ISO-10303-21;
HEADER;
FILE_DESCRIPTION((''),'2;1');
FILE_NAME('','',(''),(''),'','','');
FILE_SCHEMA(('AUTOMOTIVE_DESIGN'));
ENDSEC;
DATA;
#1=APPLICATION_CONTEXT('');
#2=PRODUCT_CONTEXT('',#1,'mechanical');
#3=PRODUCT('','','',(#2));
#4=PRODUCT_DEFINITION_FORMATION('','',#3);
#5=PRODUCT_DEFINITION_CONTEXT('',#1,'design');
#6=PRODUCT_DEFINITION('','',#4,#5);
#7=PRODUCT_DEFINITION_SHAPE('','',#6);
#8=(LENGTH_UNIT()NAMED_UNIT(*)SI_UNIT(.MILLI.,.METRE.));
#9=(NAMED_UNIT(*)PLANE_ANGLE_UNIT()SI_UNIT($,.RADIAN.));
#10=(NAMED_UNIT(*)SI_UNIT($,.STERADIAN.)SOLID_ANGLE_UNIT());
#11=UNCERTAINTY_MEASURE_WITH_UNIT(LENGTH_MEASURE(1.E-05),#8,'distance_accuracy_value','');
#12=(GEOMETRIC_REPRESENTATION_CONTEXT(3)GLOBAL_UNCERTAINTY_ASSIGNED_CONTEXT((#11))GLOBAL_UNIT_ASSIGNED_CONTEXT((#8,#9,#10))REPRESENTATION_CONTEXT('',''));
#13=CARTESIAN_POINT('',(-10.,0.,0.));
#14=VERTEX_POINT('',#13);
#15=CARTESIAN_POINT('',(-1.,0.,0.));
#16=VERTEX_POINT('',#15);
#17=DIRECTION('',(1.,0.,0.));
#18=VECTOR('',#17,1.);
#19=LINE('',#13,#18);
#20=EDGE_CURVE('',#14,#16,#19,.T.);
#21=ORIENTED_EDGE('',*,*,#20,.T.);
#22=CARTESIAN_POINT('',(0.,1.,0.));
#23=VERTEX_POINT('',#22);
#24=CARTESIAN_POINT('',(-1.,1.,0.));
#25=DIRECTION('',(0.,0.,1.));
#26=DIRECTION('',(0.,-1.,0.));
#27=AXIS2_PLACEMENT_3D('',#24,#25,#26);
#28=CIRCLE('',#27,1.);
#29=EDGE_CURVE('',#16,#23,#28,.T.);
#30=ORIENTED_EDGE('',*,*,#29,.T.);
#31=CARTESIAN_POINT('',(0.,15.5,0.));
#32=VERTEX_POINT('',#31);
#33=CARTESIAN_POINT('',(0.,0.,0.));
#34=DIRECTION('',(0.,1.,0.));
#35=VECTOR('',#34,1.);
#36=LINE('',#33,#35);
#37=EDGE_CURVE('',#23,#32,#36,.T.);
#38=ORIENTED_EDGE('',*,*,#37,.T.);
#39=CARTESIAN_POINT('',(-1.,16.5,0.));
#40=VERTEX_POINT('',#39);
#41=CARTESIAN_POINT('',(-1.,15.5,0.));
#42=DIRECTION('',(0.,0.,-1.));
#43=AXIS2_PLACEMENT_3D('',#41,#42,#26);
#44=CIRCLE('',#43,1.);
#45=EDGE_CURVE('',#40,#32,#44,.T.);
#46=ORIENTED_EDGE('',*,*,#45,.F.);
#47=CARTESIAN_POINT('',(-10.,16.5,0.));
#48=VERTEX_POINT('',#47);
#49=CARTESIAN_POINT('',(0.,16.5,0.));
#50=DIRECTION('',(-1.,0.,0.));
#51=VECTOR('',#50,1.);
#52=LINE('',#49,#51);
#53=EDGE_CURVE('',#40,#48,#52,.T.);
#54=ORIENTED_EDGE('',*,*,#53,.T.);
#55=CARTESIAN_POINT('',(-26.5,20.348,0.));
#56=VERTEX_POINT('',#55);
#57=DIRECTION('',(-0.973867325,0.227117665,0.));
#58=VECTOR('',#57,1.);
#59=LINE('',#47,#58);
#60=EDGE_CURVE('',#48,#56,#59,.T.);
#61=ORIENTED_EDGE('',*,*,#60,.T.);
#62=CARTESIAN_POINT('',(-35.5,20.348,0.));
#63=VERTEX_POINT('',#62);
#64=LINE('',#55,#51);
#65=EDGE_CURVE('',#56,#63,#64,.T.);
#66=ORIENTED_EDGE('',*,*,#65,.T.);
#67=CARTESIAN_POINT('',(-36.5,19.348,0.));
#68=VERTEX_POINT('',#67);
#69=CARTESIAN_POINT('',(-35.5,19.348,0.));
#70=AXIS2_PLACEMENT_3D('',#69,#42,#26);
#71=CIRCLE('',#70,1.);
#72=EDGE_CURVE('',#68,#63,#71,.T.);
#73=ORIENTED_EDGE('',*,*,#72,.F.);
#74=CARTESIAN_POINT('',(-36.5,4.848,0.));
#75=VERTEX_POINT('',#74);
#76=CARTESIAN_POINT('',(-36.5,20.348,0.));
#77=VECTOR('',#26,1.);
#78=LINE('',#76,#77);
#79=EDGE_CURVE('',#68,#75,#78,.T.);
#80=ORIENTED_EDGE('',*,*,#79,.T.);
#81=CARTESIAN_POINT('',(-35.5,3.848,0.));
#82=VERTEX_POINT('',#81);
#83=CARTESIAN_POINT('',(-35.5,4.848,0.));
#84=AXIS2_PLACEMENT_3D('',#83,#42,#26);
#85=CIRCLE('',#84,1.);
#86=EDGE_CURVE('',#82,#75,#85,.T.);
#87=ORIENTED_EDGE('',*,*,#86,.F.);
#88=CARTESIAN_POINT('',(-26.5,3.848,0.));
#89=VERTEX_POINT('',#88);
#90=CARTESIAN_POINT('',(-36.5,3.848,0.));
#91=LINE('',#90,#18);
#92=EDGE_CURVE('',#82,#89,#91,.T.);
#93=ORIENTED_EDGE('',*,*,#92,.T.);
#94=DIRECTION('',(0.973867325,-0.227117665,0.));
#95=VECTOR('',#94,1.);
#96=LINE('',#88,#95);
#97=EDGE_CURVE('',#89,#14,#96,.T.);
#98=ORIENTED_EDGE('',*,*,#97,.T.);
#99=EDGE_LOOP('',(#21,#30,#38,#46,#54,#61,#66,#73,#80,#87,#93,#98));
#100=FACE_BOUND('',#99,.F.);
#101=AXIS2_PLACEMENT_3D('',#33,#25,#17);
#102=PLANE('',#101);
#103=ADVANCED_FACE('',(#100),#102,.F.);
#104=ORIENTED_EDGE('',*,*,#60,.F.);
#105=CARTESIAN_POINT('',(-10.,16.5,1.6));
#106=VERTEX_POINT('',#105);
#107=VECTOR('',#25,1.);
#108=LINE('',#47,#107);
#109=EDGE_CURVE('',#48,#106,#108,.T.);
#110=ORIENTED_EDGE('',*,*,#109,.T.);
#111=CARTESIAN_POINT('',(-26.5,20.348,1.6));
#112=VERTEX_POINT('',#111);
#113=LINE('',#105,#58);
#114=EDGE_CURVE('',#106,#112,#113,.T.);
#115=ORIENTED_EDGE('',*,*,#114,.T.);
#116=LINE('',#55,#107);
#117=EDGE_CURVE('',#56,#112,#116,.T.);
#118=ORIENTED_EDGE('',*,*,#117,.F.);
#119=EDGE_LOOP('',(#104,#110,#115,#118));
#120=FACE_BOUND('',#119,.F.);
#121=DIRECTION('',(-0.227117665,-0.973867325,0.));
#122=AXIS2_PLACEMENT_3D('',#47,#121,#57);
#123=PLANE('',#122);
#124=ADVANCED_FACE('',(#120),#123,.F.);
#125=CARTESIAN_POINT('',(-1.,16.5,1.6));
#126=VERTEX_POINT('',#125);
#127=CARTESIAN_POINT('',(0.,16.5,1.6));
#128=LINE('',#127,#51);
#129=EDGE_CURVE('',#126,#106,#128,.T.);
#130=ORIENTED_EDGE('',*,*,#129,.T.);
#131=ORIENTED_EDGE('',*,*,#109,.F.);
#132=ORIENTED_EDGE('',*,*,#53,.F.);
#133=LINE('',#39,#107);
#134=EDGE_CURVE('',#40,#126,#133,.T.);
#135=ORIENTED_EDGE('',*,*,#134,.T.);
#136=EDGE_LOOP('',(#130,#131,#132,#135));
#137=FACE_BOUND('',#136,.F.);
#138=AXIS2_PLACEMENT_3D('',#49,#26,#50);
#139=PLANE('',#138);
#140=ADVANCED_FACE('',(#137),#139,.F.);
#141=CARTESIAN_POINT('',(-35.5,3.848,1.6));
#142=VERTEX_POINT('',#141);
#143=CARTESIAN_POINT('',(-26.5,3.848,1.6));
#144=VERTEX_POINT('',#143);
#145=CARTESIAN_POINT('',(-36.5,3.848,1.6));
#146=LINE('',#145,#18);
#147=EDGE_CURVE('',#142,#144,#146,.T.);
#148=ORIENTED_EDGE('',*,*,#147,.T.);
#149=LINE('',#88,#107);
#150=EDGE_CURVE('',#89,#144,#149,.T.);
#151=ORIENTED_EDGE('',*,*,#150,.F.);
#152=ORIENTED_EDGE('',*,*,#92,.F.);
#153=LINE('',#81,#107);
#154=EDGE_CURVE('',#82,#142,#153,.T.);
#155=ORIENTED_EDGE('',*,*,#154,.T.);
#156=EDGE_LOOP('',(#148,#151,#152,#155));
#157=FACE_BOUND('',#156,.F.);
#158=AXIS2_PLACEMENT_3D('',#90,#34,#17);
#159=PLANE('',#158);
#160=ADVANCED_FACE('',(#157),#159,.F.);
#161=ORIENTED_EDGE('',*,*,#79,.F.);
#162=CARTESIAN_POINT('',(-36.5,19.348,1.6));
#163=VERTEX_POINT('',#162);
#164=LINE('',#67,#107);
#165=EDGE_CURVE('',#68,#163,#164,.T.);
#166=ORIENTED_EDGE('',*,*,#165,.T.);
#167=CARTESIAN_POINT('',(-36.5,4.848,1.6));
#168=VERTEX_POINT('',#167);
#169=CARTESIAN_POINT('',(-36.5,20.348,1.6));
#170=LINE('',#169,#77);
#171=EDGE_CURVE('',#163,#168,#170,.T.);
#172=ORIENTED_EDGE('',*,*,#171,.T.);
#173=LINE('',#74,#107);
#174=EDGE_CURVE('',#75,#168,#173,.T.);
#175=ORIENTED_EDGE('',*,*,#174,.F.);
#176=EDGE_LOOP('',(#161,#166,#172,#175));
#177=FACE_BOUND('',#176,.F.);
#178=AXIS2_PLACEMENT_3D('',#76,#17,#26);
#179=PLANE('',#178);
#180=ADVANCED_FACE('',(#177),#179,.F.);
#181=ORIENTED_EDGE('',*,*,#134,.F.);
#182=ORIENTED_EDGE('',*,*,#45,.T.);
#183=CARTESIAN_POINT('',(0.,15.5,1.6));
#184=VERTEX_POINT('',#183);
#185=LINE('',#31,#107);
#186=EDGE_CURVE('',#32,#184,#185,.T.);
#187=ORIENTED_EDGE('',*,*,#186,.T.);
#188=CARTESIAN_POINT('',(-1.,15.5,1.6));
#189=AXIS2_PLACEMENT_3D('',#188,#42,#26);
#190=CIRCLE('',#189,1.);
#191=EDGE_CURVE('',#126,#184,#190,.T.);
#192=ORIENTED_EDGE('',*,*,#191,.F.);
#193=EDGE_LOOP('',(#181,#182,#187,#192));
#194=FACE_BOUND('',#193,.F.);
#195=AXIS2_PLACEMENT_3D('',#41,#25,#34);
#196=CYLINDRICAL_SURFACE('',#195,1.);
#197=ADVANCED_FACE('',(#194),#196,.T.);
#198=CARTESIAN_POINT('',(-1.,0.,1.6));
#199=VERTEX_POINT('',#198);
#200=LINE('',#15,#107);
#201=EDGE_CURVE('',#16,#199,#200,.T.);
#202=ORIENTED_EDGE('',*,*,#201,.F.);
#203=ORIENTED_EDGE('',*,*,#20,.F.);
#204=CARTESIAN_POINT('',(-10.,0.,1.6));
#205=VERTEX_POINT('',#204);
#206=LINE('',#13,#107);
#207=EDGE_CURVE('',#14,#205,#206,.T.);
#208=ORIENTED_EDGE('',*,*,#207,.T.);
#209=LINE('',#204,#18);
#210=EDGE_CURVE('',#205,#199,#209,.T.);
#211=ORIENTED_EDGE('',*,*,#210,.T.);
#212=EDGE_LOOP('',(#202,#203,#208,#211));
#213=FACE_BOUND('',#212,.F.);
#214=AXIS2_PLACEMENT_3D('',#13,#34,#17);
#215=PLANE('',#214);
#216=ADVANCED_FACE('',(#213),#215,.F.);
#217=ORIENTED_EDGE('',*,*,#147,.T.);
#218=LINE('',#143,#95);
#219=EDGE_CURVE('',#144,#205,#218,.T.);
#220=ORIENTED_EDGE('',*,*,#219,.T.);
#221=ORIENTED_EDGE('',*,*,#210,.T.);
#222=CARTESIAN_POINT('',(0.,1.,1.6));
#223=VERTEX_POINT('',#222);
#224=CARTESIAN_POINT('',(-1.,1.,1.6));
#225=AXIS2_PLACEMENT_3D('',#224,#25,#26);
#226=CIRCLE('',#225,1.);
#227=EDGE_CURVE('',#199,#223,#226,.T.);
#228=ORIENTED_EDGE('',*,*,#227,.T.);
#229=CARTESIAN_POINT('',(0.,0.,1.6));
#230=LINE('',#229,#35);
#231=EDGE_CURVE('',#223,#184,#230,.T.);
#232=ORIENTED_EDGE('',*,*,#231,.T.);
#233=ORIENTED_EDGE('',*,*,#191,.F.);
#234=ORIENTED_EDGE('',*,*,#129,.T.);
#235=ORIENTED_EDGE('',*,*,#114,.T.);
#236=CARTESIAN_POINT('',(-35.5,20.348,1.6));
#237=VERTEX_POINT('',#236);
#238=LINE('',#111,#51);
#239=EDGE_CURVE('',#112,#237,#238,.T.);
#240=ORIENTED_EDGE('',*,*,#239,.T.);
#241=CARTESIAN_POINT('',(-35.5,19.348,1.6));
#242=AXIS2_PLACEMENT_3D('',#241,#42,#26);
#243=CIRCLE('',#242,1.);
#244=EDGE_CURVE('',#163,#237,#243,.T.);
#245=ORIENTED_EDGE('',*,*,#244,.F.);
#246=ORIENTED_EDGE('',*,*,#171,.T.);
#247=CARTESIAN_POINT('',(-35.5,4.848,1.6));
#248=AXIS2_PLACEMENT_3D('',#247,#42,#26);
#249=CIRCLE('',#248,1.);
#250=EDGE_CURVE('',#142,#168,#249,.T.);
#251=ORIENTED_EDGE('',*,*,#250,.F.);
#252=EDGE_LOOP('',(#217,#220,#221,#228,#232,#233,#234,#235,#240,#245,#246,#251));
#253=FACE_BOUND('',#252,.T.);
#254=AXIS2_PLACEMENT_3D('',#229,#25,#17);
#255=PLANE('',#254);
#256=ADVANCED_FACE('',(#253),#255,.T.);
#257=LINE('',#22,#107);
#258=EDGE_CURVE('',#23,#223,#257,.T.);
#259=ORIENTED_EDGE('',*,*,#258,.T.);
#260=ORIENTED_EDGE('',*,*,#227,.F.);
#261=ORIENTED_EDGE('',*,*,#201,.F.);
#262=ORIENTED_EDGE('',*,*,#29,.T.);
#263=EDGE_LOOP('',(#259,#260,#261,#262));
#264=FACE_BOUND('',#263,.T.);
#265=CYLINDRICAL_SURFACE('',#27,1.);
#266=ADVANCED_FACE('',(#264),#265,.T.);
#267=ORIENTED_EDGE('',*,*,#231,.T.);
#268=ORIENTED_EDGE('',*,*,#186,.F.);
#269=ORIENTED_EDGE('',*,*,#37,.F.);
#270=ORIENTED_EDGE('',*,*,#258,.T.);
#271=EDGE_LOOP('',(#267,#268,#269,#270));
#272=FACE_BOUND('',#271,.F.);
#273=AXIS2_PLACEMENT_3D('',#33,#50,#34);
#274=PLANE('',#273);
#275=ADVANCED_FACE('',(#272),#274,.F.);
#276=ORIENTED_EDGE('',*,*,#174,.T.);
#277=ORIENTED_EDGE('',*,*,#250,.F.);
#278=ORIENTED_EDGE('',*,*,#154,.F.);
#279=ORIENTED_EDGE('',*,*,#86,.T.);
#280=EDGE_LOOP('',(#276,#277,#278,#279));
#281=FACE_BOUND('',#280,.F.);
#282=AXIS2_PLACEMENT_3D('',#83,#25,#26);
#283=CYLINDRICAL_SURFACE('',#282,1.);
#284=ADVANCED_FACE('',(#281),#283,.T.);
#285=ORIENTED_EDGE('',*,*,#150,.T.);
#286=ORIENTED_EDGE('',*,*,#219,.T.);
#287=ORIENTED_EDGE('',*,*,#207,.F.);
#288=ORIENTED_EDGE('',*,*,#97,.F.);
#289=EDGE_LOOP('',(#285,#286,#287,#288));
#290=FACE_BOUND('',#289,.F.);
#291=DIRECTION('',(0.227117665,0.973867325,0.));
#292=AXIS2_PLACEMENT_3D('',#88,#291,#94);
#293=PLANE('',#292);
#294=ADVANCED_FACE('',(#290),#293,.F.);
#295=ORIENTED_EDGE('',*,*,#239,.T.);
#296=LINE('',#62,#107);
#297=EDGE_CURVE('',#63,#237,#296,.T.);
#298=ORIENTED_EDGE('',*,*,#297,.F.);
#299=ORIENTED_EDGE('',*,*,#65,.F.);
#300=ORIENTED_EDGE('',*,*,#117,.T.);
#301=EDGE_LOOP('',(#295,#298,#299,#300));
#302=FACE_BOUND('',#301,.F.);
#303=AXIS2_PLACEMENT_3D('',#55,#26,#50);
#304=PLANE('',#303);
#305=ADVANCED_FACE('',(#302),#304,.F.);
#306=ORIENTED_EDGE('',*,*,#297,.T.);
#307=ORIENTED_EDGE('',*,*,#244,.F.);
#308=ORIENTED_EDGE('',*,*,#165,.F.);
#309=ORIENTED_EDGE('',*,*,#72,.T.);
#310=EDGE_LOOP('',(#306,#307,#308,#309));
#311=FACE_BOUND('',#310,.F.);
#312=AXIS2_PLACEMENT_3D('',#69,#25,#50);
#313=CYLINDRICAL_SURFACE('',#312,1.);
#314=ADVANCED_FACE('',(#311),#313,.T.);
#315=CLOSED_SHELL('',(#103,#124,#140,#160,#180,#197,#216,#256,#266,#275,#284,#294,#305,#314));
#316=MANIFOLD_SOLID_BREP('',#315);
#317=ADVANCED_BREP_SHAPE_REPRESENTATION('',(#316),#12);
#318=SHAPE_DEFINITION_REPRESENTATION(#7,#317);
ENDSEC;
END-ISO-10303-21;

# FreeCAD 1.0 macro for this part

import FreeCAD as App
import Part
import Sketcher
from FreeCAD import Vector
Q = App.Units.Quantity


def edges_at(feature, points):
    """Names of the edges that pass closest to the given points."""
    edges = feature.Shape.Edges
    near = lambda p: min(range(len(edges)), key=lambda i: edges[i].distToShape(Part.Vertex(*p))[0])
    return sorted({f"Edge{near(p) + 1}" for p in points})

doc = App.newDocument("Part")
body = doc.addObject("PartDesign::Body", "Body")

# Sketch on XY plane
sketch1 = doc.addObject("Sketcher::SketchObject", "Sketch")
body.addObject(sketch1)
sketch1.AttachmentSupport = (doc.XY_Plane, [""])
sketch1.MapMode = "FlatFace"
sketch1.addGeometry([
    Part.LineSegment(Vector(-10, 0, 0), Vector(0, 0, 0)),  # 0
    Part.LineSegment(Vector(0, 0, 0), Vector(0, 16, 0)),  # 1
    Part.LineSegment(Vector(0, 16, 0), Vector(-10, 16, 0)),  # 2
    Part.LineSegment(Vector(-10, 16, 0), Vector(-26, 20, 0)),  # 3
    Part.LineSegment(Vector(-26, 20, 0), Vector(-36, 20, 0)),  # 4
    Part.LineSegment(Vector(-36, 20, 0), Vector(-36, 4, 0)),  # 5
    Part.LineSegment(Vector(-36, 4, 0), Vector(-26, 4, 0)),  # 6
    Part.LineSegment(Vector(-26, 4, 0), Vector(-10, 0, 0)),  # 7
], False)
sketch1.addConstraint([
    Sketcher.Constraint("Coincident", 0, 2, 1, 1),
    Sketcher.Constraint("Coincident", 1, 2, 2, 1),
    Sketcher.Constraint("Coincident", 2, 2, 3, 1),
    Sketcher.Constraint("Coincident", 3, 2, 4, 1),
    Sketcher.Constraint("Coincident", 4, 2, 5, 1),
    Sketcher.Constraint("Coincident", 5, 2, 6, 1),
    Sketcher.Constraint("Coincident", 6, 2, 7, 1),
    Sketcher.Constraint("Coincident", 7, 2, 0, 1),
    Sketcher.Constraint("Horizontal", 0),
    Sketcher.Constraint("Vertical", 1),
    Sketcher.Constraint("Horizontal", 2),
    Sketcher.Constraint("Horizontal", 4),
    Sketcher.Constraint("Vertical", 5),
    Sketcher.Constraint("Horizontal", 6),
    Sketcher.Constraint("Coincident", 0, 2, -1, 1),
    Sketcher.Constraint("Parallel", 3, 7),
    Sketcher.Constraint("Vertical", 3, 2, 6, 2),
    Sketcher.Constraint("Vertical", 2, 2, 7, 2),
    Sketcher.Constraint("Equal", 2, 4),
    Sketcher.Constraint("DistanceX", 0, 1, 0, 2, Q("10 mm")),
    Sketcher.Constraint("DistanceY", 1, 1, 1, 2, Q("16.5 mm")),
    Sketcher.Constraint("DistanceX", 4, 2, -1, 1, Q("36.5 mm")),
    Sketcher.Constraint("DistanceY", -1, 1, 5, 2, Q("3.848 mm")),
])
pad1 = doc.addObject("PartDesign::Pad", "Pad")
body.addObject(pad1)
pad1.Profile = sketch1
pad1.Length = 1.6
doc.recompute()

fillet = doc.addObject("PartDesign::Fillet", "Fillet")
body.addObject(fillet)
fillet.Base = (pad1, edges_at(pad1, [
    (-36.5, 20.348, 0.8),
    (-36.5, 3.848, 0.8),
    (0, 0, 0.8),
    (0, 16.5, 0.8),
]))
fillet.Radius = 1

doc.recompute()
